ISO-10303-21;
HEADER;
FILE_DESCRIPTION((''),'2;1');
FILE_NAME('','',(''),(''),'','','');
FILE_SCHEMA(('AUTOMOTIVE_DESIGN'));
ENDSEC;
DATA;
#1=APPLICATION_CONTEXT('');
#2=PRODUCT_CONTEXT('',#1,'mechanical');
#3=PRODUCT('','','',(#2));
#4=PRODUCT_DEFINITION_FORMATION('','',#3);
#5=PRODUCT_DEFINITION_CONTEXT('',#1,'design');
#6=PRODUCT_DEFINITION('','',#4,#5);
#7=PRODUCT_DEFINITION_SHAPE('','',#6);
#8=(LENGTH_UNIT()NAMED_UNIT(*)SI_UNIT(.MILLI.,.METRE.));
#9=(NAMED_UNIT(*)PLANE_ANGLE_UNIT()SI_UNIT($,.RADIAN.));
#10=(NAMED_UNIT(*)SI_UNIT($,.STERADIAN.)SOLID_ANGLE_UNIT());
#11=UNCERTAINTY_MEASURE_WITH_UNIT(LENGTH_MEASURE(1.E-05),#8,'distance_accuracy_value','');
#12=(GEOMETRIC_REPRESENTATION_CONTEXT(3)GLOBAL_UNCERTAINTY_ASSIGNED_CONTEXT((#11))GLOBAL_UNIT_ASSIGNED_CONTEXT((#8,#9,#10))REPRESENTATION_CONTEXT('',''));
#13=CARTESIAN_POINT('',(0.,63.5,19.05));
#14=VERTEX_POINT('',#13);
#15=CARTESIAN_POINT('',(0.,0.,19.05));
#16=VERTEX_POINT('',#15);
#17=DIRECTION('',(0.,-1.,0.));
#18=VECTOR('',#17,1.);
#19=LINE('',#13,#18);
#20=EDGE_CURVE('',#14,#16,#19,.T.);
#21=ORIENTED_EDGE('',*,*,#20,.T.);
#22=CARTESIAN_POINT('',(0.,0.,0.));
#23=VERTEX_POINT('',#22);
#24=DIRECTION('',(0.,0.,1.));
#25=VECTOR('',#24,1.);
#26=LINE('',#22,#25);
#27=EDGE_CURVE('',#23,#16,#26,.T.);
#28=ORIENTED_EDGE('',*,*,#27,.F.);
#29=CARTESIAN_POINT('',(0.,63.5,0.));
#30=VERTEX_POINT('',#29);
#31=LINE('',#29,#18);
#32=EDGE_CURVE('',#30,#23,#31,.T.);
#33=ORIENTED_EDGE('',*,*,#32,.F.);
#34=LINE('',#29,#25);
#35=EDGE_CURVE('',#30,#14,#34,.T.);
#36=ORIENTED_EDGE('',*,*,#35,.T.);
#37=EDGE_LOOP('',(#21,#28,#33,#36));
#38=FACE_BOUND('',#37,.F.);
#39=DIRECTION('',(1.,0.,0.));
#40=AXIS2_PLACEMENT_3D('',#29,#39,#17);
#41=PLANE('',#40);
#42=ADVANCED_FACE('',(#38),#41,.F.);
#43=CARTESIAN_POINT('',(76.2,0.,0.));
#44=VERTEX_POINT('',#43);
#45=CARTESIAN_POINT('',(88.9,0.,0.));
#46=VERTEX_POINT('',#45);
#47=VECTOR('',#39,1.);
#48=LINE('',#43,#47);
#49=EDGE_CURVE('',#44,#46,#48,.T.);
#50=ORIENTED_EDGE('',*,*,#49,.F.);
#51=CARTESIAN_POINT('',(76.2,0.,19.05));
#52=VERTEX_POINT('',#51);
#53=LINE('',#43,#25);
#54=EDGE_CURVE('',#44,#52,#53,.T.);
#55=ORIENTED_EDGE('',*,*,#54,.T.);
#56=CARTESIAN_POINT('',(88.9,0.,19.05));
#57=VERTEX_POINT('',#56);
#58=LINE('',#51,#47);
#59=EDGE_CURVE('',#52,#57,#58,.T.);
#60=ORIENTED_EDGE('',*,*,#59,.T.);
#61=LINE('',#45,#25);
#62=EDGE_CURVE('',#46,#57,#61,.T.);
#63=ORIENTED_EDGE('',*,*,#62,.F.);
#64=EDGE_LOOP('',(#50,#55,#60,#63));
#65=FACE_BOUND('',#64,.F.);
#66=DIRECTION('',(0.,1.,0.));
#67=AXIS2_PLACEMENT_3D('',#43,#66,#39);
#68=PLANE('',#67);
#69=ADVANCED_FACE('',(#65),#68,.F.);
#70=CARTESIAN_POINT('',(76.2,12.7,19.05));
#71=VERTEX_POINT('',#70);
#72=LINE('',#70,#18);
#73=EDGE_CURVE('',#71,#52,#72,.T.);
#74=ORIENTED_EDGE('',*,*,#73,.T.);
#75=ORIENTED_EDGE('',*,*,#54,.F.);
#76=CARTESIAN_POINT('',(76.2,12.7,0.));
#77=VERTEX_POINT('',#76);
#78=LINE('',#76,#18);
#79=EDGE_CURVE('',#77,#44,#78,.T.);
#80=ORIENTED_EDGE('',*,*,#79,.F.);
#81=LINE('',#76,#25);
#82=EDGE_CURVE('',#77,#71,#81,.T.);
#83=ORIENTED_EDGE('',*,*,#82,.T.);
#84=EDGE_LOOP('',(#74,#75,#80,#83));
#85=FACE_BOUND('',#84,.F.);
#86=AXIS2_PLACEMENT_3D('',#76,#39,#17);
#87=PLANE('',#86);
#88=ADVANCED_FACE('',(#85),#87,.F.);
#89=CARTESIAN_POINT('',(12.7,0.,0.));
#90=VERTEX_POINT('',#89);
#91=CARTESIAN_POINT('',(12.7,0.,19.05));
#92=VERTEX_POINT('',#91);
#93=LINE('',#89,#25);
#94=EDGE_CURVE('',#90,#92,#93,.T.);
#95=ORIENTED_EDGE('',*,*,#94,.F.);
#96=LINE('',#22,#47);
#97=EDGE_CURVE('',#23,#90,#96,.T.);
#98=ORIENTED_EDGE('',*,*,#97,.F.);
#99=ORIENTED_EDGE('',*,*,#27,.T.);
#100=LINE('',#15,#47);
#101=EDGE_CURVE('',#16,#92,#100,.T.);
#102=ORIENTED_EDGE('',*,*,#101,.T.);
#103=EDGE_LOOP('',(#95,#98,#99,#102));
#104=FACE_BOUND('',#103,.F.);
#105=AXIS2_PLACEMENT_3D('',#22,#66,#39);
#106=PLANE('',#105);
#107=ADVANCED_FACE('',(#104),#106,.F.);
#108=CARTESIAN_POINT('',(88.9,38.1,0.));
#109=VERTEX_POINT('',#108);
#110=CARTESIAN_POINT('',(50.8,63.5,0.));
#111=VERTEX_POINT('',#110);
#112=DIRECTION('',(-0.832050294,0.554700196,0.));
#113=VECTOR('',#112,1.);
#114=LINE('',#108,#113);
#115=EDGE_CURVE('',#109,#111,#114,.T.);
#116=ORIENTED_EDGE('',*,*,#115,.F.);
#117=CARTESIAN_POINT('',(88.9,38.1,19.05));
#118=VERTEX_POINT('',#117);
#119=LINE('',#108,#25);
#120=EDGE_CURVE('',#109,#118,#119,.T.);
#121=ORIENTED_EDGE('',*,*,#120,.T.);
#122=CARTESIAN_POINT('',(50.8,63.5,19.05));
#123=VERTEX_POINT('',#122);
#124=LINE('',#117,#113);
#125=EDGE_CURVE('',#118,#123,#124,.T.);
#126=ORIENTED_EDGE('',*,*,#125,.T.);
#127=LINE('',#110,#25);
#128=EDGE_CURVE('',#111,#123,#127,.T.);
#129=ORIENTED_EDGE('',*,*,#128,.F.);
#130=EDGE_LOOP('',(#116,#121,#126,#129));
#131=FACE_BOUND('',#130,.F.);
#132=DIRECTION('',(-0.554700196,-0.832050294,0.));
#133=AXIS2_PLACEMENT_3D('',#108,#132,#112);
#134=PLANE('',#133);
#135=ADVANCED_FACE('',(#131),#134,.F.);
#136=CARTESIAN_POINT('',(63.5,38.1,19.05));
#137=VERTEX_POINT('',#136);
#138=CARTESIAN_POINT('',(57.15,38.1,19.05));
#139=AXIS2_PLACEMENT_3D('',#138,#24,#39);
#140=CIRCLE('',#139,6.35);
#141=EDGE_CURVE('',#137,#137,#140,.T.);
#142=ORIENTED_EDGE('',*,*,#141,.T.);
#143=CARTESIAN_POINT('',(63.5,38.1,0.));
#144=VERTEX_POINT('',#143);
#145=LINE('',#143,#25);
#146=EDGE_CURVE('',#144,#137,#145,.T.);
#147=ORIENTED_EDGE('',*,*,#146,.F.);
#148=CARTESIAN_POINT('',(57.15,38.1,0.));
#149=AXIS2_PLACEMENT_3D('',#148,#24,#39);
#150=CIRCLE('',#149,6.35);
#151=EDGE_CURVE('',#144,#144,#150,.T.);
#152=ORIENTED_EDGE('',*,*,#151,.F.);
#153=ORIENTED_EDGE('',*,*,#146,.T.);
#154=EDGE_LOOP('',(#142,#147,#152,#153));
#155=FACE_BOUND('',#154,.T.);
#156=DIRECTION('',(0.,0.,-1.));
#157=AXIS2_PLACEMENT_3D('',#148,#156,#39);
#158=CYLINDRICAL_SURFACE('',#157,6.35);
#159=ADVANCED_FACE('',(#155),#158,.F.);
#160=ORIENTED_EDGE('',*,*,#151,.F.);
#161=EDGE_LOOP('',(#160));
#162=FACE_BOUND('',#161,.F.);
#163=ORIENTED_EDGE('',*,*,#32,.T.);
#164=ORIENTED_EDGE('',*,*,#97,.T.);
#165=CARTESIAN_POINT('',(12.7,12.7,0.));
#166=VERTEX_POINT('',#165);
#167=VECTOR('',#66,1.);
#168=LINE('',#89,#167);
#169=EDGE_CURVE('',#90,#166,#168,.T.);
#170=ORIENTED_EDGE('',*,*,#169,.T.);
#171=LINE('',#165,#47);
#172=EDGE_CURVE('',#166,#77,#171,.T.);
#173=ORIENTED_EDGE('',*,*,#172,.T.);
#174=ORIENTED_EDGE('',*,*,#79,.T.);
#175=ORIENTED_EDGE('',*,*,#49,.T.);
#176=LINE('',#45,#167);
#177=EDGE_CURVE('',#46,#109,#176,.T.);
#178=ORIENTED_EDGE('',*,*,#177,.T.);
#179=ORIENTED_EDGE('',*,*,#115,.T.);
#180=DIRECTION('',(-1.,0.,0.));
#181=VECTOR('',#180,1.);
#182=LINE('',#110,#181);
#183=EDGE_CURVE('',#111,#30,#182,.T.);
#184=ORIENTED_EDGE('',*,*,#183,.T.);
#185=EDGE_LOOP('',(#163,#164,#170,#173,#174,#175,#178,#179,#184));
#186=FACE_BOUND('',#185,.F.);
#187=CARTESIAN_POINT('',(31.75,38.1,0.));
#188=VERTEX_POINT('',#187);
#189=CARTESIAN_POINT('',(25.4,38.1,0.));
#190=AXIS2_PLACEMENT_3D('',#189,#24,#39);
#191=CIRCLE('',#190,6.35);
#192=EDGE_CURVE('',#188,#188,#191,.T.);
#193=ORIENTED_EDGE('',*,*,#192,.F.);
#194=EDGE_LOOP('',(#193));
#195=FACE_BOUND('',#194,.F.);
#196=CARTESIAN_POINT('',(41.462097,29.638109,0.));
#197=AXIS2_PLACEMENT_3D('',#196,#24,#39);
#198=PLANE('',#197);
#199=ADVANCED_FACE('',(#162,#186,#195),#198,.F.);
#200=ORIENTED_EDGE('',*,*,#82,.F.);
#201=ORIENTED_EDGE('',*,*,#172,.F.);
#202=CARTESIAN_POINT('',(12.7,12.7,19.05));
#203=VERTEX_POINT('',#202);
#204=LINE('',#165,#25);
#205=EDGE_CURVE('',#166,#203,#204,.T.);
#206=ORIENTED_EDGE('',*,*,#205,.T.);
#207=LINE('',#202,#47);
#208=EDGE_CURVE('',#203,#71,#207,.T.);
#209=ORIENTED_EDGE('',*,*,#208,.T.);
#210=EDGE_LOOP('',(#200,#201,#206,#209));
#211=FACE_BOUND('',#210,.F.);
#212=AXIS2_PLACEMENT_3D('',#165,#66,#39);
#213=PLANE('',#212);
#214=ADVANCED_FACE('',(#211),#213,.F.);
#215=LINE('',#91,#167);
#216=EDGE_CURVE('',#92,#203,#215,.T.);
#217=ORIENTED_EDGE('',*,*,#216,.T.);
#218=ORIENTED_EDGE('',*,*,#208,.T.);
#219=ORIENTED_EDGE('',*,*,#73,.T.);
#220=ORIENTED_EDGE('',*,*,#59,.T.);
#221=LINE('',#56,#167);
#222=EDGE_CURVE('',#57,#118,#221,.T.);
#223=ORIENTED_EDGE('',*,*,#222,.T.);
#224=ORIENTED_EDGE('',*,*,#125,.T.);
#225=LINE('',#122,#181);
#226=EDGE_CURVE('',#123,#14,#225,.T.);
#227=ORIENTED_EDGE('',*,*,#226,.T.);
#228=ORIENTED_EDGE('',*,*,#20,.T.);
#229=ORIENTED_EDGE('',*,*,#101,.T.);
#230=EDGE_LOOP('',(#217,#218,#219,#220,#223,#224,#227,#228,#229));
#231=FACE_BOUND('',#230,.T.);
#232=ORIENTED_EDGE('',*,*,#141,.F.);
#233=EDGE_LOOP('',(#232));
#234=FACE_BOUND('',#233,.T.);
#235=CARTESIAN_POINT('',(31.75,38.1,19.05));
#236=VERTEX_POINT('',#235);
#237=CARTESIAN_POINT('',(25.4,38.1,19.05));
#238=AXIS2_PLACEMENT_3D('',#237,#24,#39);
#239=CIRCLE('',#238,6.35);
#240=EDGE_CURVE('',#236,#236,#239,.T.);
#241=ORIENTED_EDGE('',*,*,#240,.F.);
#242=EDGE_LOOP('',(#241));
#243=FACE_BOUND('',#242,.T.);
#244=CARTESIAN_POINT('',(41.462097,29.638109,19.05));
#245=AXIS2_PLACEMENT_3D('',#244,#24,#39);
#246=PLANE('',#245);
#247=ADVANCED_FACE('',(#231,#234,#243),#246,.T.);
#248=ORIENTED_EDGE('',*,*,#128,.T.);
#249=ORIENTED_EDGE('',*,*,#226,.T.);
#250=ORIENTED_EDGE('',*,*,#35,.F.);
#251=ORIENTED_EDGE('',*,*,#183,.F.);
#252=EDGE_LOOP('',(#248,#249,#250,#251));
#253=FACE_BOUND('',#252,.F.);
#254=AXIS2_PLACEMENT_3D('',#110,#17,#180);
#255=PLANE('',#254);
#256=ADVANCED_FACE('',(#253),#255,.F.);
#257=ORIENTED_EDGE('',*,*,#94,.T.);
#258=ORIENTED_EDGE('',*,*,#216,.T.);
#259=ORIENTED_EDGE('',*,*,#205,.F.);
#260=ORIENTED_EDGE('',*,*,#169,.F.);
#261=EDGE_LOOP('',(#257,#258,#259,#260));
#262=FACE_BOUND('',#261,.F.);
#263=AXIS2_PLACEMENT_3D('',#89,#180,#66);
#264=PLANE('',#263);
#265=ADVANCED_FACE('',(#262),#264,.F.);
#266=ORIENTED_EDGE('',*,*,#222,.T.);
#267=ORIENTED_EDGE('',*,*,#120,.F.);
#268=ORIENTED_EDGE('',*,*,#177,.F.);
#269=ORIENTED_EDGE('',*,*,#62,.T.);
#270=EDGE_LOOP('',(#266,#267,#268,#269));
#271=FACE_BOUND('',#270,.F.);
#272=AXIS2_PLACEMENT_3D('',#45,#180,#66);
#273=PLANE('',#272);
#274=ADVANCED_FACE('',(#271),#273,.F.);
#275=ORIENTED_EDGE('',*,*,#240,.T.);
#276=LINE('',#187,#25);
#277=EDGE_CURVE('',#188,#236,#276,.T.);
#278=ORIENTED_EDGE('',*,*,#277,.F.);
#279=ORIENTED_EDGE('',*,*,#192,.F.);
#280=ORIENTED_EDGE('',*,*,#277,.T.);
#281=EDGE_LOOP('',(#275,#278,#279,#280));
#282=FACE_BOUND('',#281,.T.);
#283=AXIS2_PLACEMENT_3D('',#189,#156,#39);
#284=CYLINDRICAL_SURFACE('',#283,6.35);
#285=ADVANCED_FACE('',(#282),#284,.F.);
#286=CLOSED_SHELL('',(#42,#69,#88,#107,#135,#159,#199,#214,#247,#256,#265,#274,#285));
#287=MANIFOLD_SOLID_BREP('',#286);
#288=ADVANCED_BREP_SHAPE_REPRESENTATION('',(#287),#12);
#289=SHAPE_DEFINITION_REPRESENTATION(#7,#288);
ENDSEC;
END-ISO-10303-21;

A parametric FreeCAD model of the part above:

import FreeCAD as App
import Part
import Sketcher
from FreeCAD import Vector
Q = App.Units.Quantity

doc = App.newDocument("Part")
params = doc.addObject("Spreadsheet::Sheet", "Params")
for row, (alias, value) in enumerate([
    ("sketch1_diameter", "0.5 in"),
    ("sketch1_width", "2 in"),
    ("sketch1_width2", "0.5 in"),
    ("sketch1_width3", "2.5 in"),
    ("sketch1_height", "1.5 in"),
    ("pad1_length", "0.75 in"),
], start=1):
    params.set(f"A{row}", alias)
    params.set(f"B{row}", "=" + value)
    params.setAlias(f"B{row}", alias)

body = doc.addObject("PartDesign::Body", "Body")

sketch1 = doc.addObject("Sketcher::SketchObject", "Sketch")
body.addObject(sketch1)
sketch1.AttachmentSupport = (doc.XY_Plane, [""])
sketch1.MapMode = "FlatFace"
sketch1.addGeometry([
    Part.LineSegment(Vector(0, 64, 0), Vector(0, 0, 0)),
    Part.LineSegment(Vector(0, 0, 0), Vector(13, 0, 0)),
    Part.LineSegment(Vector(13, 0, 0), Vector(13, 13, 0)),
    Part.LineSegment(Vector(13, 13, 0), Vector(76, 13, 0)),
    Part.LineSegment(Vector(76, 13, 0), Vector(76, 0, 0)),
    Part.LineSegment(Vector(76, 0, 0), Vector(89, 0, 0)),
    Part.LineSegment(Vector(89, 0, 0), Vector(89, 38, 0)),
    Part.LineSegment(Vector(89, 38, 0), Vector(51, 64, 0)),
    Part.LineSegment(Vector(51, 64, 0), Vector(0, 64, 0)),
    Part.Circle(Vector(25, 38, 0), Vector(0, 0, 1), 6),
    Part.Circle(Vector(57, 38, 0), Vector(0, 0, 1), 6),
], False)
sketch1.addConstraint([
    Sketcher.Constraint("Coincident", 0, 2, 1, 1),
    Sketcher.Constraint("Coincident", 1, 2, 2, 1),
    Sketcher.Constraint("Coincident", 2, 2, 3, 1),
    Sketcher.Constraint("Coincident", 3, 2, 4, 1),
    Sketcher.Constraint("Coincident", 4, 2, 5, 1),
    Sketcher.Constraint("Coincident", 5, 2, 6, 1),
    Sketcher.Constraint("Coincident", 6, 2, 7, 1),
    Sketcher.Constraint("Coincident", 7, 2, 8, 1),
    Sketcher.Constraint("Coincident", 8, 2, 0, 1),
    Sketcher.Constraint("Vertical", 0),
    Sketcher.Constraint("Horizontal", 1),
    Sketcher.Constraint("Vertical", 2),
    Sketcher.Constraint("Horizontal", 3),
    Sketcher.Constraint("Vertical", 4),
    Sketcher.Constraint("Horizontal", 5),
    Sketcher.Constraint("Vertical", 6),
    Sketcher.Constraint("Horizontal", 8),
    Sketcher.Constraint("Coincident", 0, 2, -1, 1),
    Sketcher.Constraint("Equal", 9, 10),
    Sketcher.Constraint("PointOnObject", 4, 2, -1),
    Sketcher.Constraint("Horizontal", 9, 3, 10, 3),
    Sketcher.Constraint("Horizontal", 10, 3, 6, 2),
    Sketcher.Constraint("Equal", 1, 5),
    Sketcher.Constraint("Equal", 3, 0),
    Sketcher.Constraint("Equal", 5, 2),
    Sketcher.Constraint("Diameter", 9, Q("0.5 in")),
    Sketcher.Constraint("DistanceX", 8, 2, 8, 1, Q("2 in")),
    Sketcher.Constraint("DistanceX", 1, 1, 1, 2, Q("0.5 in")),
    Sketcher.Constraint("DistanceX", 3, 1, 3, 2, Q("2.5 in")),
    Sketcher.Constraint("DistanceY", 6, 1, 6, 2, Q("1.5 in")),
    Sketcher.Constraint("DistanceX", -1, 1, 9, 3, Q("1 in")),
    Sketcher.Constraint("DistanceX", -1, 1, 10, 3, Q("2.25 in")),
])
sketch1.setExpression("Constraints[25]", "Params.sketch1_diameter")
sketch1.setExpression("Constraints[26]", "Params.sketch1_width")
sketch1.setExpression("Constraints[27]", "Params.sketch1_width2")
sketch1.setExpression("Constraints[28]", "Params.sketch1_width3")
sketch1.setExpression("Constraints[29]", "Params.sketch1_height")
pad1 = doc.addObject("PartDesign::Pad", "Pad")
body.addObject(pad1)
pad1.Profile = sketch1
pad1.setExpression("Length", "Params.pad1_length")

doc.recompute()
